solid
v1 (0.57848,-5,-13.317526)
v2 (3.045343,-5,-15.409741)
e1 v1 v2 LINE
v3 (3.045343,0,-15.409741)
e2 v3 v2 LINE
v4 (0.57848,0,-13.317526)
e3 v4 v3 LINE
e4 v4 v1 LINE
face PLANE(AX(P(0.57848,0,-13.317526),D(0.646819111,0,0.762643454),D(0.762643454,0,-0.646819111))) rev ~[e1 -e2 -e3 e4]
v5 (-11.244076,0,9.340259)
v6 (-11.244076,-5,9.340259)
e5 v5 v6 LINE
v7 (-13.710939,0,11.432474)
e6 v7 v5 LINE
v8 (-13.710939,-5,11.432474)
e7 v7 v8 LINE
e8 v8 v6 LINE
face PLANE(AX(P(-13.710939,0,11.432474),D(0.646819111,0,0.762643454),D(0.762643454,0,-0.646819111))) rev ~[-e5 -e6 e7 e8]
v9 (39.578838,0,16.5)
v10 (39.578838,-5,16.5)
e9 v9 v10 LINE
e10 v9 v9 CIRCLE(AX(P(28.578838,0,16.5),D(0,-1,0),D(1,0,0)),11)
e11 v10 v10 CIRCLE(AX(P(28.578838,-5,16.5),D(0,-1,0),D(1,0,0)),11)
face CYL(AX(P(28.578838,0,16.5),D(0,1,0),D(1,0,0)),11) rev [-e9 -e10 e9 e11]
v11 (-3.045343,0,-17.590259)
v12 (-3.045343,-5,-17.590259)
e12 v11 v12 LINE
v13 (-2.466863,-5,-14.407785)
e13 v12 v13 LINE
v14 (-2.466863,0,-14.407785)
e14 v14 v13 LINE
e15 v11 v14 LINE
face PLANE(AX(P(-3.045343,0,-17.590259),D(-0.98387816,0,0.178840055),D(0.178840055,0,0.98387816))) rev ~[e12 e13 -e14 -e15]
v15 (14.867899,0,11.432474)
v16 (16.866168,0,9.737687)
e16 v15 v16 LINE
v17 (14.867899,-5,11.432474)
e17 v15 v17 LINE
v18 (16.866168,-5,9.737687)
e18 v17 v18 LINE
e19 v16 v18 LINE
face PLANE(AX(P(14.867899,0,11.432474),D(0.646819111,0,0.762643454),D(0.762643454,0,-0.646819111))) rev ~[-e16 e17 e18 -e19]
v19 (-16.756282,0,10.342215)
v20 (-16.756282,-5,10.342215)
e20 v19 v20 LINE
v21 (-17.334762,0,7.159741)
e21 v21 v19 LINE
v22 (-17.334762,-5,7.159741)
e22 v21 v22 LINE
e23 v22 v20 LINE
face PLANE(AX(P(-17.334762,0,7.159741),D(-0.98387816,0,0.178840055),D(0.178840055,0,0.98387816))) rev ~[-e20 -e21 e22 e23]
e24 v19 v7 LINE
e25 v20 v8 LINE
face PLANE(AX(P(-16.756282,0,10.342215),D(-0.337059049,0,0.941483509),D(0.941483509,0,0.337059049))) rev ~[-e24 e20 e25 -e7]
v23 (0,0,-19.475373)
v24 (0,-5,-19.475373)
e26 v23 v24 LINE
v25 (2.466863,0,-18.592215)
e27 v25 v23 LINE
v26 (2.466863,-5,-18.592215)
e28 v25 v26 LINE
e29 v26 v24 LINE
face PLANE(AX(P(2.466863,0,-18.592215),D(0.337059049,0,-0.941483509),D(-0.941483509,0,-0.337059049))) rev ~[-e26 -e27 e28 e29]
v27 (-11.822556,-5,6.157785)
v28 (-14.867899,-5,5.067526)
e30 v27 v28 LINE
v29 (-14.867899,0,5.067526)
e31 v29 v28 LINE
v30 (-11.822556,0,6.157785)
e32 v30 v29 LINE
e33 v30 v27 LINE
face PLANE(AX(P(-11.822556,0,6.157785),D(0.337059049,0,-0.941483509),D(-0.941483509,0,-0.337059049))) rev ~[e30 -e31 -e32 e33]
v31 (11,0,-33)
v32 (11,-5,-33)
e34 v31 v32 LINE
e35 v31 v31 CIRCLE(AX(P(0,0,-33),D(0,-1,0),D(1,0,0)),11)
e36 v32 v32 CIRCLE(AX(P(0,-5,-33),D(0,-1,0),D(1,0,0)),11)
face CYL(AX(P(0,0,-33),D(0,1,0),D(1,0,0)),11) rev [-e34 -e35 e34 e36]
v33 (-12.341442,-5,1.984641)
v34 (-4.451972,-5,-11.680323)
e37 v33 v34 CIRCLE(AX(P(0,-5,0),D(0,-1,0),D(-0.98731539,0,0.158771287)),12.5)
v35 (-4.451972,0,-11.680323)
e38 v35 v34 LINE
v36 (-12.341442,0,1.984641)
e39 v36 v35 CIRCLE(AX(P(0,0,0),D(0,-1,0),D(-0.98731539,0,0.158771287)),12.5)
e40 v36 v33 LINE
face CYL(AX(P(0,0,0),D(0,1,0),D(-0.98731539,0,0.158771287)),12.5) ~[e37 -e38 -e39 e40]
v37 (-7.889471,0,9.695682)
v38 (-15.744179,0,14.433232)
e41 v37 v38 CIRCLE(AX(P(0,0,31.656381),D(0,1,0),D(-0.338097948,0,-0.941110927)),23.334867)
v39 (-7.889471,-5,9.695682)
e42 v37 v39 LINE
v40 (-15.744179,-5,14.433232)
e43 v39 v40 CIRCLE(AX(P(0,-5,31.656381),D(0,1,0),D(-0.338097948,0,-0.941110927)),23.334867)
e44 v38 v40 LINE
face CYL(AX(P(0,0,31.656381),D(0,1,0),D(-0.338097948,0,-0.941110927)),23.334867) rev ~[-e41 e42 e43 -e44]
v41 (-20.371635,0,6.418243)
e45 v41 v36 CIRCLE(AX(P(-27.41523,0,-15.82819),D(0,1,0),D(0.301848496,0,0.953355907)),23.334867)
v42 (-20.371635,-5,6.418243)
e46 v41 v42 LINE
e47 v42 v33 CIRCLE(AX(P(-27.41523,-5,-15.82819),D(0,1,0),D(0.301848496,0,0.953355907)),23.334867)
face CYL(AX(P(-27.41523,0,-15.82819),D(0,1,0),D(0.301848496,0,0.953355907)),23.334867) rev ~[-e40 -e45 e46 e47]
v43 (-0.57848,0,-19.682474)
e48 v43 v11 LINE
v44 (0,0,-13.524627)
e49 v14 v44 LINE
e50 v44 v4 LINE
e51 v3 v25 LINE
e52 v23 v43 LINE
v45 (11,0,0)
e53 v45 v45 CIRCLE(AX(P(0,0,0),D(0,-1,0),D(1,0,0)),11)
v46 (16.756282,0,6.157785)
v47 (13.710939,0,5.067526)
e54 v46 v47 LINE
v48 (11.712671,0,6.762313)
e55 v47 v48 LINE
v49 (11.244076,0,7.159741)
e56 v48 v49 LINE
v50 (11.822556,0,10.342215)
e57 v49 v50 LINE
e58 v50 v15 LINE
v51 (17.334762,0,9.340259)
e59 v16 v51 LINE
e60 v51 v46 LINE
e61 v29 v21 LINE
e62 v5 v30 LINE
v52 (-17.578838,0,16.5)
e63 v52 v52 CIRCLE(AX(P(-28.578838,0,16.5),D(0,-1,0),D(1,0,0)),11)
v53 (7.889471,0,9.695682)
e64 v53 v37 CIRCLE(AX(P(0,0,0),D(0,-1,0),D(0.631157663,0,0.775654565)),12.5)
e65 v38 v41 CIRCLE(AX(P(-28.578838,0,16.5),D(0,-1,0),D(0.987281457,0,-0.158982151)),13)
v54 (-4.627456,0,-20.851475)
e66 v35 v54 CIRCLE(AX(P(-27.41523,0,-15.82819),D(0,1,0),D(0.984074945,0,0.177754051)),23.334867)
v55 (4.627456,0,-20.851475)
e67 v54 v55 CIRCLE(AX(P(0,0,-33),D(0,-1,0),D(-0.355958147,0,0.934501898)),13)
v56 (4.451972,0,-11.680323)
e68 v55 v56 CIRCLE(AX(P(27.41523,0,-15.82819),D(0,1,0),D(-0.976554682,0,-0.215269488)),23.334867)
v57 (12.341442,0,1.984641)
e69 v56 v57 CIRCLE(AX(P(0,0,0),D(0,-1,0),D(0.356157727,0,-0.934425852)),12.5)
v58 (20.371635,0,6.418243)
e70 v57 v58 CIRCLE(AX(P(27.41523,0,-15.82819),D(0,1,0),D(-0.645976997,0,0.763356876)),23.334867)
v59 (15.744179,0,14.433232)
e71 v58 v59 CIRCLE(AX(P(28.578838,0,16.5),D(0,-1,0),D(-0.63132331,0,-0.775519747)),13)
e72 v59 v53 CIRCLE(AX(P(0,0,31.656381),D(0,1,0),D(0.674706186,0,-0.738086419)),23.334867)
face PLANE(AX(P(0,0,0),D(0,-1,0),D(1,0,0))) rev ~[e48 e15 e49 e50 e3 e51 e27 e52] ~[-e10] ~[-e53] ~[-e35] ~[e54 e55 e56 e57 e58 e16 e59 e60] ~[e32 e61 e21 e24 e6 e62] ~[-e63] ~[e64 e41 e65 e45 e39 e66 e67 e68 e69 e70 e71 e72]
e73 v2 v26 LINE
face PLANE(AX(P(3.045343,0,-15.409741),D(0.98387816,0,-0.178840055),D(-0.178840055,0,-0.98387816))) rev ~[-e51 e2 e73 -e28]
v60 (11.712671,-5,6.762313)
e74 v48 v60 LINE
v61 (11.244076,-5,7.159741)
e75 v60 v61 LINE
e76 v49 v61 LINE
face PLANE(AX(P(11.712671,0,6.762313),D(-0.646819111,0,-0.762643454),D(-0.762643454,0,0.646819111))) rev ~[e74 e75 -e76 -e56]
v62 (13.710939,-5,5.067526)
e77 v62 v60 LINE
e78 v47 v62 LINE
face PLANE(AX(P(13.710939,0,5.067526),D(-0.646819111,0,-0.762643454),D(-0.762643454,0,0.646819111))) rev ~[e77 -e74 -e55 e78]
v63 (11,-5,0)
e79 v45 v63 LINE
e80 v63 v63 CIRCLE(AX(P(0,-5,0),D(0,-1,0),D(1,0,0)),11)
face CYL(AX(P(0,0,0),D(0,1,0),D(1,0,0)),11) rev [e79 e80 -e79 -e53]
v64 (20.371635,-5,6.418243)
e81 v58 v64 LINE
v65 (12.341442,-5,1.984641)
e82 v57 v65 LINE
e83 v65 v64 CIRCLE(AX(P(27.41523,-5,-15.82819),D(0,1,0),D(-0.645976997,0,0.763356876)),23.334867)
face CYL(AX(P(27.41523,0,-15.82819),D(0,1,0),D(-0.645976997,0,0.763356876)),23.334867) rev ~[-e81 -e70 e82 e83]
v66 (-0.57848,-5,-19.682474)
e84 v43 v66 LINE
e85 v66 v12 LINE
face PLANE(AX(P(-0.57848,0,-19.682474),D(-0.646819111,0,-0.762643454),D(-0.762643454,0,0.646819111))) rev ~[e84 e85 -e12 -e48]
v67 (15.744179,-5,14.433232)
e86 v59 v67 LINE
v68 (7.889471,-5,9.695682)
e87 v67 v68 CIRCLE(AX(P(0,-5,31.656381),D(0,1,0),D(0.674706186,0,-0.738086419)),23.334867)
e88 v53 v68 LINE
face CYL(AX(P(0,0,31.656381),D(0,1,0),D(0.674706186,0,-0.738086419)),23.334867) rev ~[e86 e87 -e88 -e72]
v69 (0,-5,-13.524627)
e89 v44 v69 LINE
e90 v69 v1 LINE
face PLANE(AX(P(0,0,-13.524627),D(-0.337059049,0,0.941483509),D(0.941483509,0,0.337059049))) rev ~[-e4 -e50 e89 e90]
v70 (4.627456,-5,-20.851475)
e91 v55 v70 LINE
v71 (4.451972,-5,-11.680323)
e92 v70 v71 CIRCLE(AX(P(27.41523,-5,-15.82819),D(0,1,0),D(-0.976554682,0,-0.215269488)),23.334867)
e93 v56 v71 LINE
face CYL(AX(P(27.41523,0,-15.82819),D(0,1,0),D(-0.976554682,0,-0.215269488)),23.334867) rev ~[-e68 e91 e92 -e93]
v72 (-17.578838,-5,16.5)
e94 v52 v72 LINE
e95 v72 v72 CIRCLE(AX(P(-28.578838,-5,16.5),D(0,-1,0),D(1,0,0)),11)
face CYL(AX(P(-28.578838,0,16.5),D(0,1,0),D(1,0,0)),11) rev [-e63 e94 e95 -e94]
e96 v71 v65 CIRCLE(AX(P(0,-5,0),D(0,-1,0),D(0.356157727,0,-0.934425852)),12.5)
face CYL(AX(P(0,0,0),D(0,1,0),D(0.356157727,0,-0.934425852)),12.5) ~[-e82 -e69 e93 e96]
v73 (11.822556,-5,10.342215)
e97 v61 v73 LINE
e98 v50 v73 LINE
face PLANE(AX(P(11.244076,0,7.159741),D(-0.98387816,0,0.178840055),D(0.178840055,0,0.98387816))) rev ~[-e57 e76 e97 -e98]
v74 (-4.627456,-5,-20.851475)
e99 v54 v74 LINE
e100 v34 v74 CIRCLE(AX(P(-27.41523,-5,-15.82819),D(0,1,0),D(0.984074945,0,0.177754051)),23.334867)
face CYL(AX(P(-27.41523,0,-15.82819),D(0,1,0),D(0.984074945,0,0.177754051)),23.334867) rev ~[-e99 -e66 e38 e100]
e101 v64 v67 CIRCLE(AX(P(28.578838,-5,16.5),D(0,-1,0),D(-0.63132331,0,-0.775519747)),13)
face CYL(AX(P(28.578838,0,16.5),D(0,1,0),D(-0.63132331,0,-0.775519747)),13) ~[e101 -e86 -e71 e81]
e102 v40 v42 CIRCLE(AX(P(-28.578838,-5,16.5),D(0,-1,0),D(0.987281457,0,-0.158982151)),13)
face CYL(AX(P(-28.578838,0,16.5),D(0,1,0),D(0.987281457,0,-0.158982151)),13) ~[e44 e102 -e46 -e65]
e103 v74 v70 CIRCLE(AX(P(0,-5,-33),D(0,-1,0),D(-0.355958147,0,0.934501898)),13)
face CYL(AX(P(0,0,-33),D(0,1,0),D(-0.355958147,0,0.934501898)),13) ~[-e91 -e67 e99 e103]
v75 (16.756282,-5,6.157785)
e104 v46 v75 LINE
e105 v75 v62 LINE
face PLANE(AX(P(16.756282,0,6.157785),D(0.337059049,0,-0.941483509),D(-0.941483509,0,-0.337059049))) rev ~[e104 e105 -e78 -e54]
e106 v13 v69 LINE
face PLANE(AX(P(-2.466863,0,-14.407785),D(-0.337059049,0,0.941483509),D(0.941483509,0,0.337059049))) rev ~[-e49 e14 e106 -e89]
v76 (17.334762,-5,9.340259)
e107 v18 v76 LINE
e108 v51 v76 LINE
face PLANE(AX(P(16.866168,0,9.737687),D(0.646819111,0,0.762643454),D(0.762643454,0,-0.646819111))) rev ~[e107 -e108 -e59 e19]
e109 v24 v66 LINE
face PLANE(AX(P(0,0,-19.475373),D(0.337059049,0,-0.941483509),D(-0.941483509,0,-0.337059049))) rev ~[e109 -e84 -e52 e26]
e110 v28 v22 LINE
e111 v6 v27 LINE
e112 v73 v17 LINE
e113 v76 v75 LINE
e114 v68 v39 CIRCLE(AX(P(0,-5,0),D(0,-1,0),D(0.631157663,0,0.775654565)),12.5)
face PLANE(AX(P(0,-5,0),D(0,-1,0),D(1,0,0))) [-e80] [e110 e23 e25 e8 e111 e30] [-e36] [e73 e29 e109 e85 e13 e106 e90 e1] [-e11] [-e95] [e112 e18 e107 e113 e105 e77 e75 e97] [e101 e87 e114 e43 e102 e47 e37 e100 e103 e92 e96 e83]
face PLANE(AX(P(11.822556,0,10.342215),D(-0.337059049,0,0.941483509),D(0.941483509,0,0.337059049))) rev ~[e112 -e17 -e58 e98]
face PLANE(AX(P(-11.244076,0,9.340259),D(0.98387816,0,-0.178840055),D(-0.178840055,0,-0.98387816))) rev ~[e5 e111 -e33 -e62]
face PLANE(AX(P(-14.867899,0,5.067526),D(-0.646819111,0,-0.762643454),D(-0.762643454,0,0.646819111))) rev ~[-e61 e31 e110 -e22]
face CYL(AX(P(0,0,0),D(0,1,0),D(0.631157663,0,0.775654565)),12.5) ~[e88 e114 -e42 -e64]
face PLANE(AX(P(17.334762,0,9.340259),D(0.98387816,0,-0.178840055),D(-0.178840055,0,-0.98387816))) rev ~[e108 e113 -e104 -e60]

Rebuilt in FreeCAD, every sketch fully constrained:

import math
import FreeCAD as App
import Part
import Sketcher
from FreeCAD import Vector
Q = App.Units.Quantity


def add_polygon(sketch, points):
    """Adds a closed chain of lines whose ends are joined by coincident constraints."""
    first, n = sketch.GeometryCount, len(points)
    for a, b in zip(points, points[1:] + points[:1]):
        sketch.addGeometry(Part.LineSegment(App.Vector(*a, 0), App.Vector(*b, 0)), False)
    for i in range(n):
        sketch.addConstraint(Sketcher.Constraint("Coincident", first + i, 2, first + (i + 1) % n, 1))

doc = App.newDocument("Part")
body = doc.addObject("PartDesign::Body", "Body")

sketch1 = body.newObject("Sketcher::SketchObject", "Sketch")
sketch1.AttachmentSupport = (doc.getObject("XZ_Plane"), [""])
sketch1.MapMode = "FlatFace"
sketch1.addGeometry(Part.ArcOfCircle(Part.Circle(Vector(27.4, -15.8, 0), Vector(0, 0, 1), 23.3), math.radians(108), math.radians(130)), False)
sketch1.addGeometry(Part.ArcOfCircle(Part.Circle(Vector(28.6, 16.5, 0), Vector(0, 0, 1), 13), math.radians(-129), math.radians(189)), False)
sketch1.addGeometry(Part.ArcOfCircle(Part.Circle(Vector(0, 31.7, 0), Vector(0, 0, 1), 23.3), math.radians(-70), math.radians(-48)), False)
sketch1.addGeometry(Part.ArcOfCircle(Part.Circle(Vector(0, 0, 0), Vector(0, 0, 1), 12.5), math.radians(51), math.radians(129)), False)
sketch1.addGeometry(Part.ArcOfCircle(Part.Circle(Vector(0, 31.7, 0), Vector(0, 0, 1), 23.3), math.radians(-132), math.radians(-110)), False)
sketch1.addGeometry(Part.ArcOfCircle(Part.Circle(Vector(-28.6, 16.5, 0), Vector(0, 0, 1), 13), math.radians(-9), math.radians(309)), False)
sketch1.addGeometry(Part.ArcOfCircle(Part.Circle(Vector(-27.4, -15.8, 0), Vector(0, 0, 1), 23.3), math.radians(50), math.radians(72)), False)
sketch1.addGeometry(Part.ArcOfCircle(Part.Circle(Vector(0, 0, 0), Vector(0, 0, 1), 12.5), math.radians(171), math.radians(249)), False)
sketch1.addGeometry(Part.ArcOfCircle(Part.Circle(Vector(-27.4, -15.8, 0), Vector(0, 0, 1), 23.3), math.radians(-12), math.radians(10)), False)
sketch1.addGeometry(Part.ArcOfCircle(Part.Circle(Vector(0, -33, 0), Vector(0, 0, 1), 13), math.radians(111), math.radians(429)), False)
sketch1.addGeometry(Part.ArcOfCircle(Part.Circle(Vector(27.4, -15.8, 0), Vector(0, 0, 1), 23.3), math.radians(170), math.radians(192)), False)
sketch1.addGeometry(Part.ArcOfCircle(Part.Circle(Vector(0, 0, 0), Vector(0, 0, 1), 12.5), math.radians(-69), math.radians(9)), False)
sketch1.addGeometry(Part.Circle(Vector(0, -33, 0), Vector(0, 0, 1), 11), False)
add_polygon(sketch1, [(0, -13.5), (0.6, -13.3), (3, -15.4), (2.5, -18.6), (0, -19.5), (-0.6, -19.7), (-3, -17.6), (-2.5, -14.4)])
add_polygon(sketch1, [(-11.2, 9.3), (-11.8, 6.2), (-14.9, 5.1), (-17.3, 7.2), (-16.8, 10.3), (-13.7, 11.4)])
sketch1.addGeometry(Part.Circle(Vector(-28.6, 16.5, 0), Vector(0, 0, 1), 11), False)
sketch1.addGeometry(Part.Circle(Vector(0, 0, 0), Vector(0, 0, 1), 11), False)
add_polygon(sketch1, [(16.9, 9.7), (17.3, 9.3), (16.8, 6.2), (13.7, 5.1), (11.7, 6.8), (11.2, 7.2), (11.8, 10.3), (14.9, 11.4)])
sketch1.addGeometry(Part.Circle(Vector(28.6, 16.5, 0), Vector(0, 0, 1), 11), False)
sketch1.addConstraint([
    Sketcher.Constraint("Coincident", 0, 1, 1, 1),
    Sketcher.Constraint("Coincident", 1, 2, 2, 2),
    Sketcher.Constraint("Coincident", 2, 1, 3, 1),
    Sketcher.Constraint("Coincident", 3, 2, 4, 2),
    Sketcher.Constraint("Coincident", 4, 1, 5, 1),
    Sketcher.Constraint("Coincident", 5, 2, 6, 2),
    Sketcher.Constraint("Coincident", 6, 1, 7, 1),
    Sketcher.Constraint("Coincident", 7, 2, 8, 2),
    Sketcher.Constraint("Coincident", 8, 1, 9, 1),
    Sketcher.Constraint("Coincident", 9, 2, 10, 2),
    Sketcher.Constraint("Coincident", 10, 1, 11, 1),
    Sketcher.Constraint("Coincident", 11, 2, 0, 2),
    Sketcher.Constraint("Coincident", 3, 3, -1, 1),
    Sketcher.Constraint("Coincident", 7, 3, -1, 1),
    Sketcher.Constraint("Coincident", 11, 3, -1, 1),
    Sketcher.Constraint("Coincident", 28, 3, -1, 1),
    Sketcher.Constraint("Coincident", 4, 3, 2, 3),
    Sketcher.Constraint("Coincident", 8, 3, 6, 3),
    Sketcher.Constraint("Coincident", 10, 3, 0, 3),
    Sketcher.Constraint("Coincident", 12, 3, 9, 3),
    Sketcher.Constraint("Coincident", 27, 3, 5, 3),
    Sketcher.Constraint("Coincident", 37, 3, 1, 3),
    Sketcher.Constraint("Equal", 0, 2),
    Sketcher.Constraint("Equal", 2, 4),
    Sketcher.Constraint("Equal", 1, 5),
    Sketcher.Constraint("Equal", 4, 6),
    Sketcher.Constraint("Equal", 3, 7),
    Sketcher.Constraint("Equal", 6, 8),
    Sketcher.Constraint("Equal", 5, 9),
    Sketcher.Constraint("Equal", 8, 10),
    Sketcher.Constraint("Equal", 7, 11),
    Sketcher.Constraint("Equal", 12, 27),
    Sketcher.Constraint("Equal", 27, 28),
    Sketcher.Constraint("Equal", 28, 37),
    Sketcher.Constraint("Symmetric", 1, 3, 5, 3, -2),
    Sketcher.Constraint("Symmetric", 0, 3, 6, 3, -2),
    Sketcher.Constraint("PointOnObject", 2, 3, -2),
    Sketcher.Constraint("PointOnObject", 9, 3, -2),
    Sketcher.Constraint("PointOnObject", 16, 2, -2),
    Sketcher.Constraint("PointOnObject", 20, 2, -2),
    Sketcher.Constraint("Parallel", 13, 16),
    Sketcher.Constraint("Parallel", 16, 17),
    Sketcher.Constraint("Parallel", 14, 18),
    Sketcher.Constraint("Parallel", 15, 19),
    Sketcher.Constraint("Parallel", 17, 20),
    Sketcher.Constraint("Parallel", 19, 21),
    Sketcher.Constraint("Parallel", 20, 22),
    Sketcher.Constraint("Parallel", 18, 23),
    Sketcher.Constraint("Parallel", 21, 24),
    Sketcher.Constraint("Parallel", 22, 25),
    Sketcher.Constraint("Parallel", 23, 26),
    Sketcher.Constraint("Parallel", 26, 29),
    Sketcher.Constraint("Parallel", 24, 30),
    Sketcher.Constraint("Parallel", 25, 31),
    Sketcher.Constraint("Parallel", 29, 32),
    Sketcher.Constraint("Parallel", 32, 33),
    Sketcher.Constraint("Parallel", 30, 34),
    Sketcher.Constraint("Parallel", 31, 35),
    Sketcher.Constraint("Parallel", 33, 36),
    Sketcher.Constraint("Horizontal", 26, 2, 29, 2),
    Sketcher.Constraint("Horizontal", 21, 2, 30, 2),
    Sketcher.Constraint("Horizontal", 22, 2, 31, 2),
    Sketcher.Constraint("Horizontal", 23, 2, 33, 2),
    Sketcher.Constraint("Horizontal", 24, 2, 34, 2),
    Sketcher.Constraint("Equal", 14, 15),
    Sketcher.Constraint("Equal", 13, 17),
    Sketcher.Constraint("Equal", 15, 18),
    Sketcher.Constraint("Equal", 19, 21),
    Sketcher.Constraint("Equal", 21, 22),
    Sketcher.Constraint("Equal", 22, 23),
    Sketcher.Constraint("Equal", 23, 24),
    Sketcher.Constraint("Equal", 17, 29),
    Sketcher.Constraint("Equal", 20, 32),
    Sketcher.Constraint("Equal", 29, 33),
    Sketcher.Constraint("Diameter", 12, Q("22 mm")),
    Sketcher.Constraint("Radius", 1, Q("13 mm")),
    Sketcher.Constraint("Radius", 3, Q("12.5 mm")),
    Sketcher.Constraint("DistanceY", 9, 3, -1, 1, Q("33 mm")),
    Sketcher.Constraint("DistanceY", -1, 1, 1, 3, Q("16.5 mm")),
    Sketcher.Constraint("Radius", 0, Q("23.334867 mm")),
    Sketcher.Constraint("DistanceY", 8, 1, 17, 2, Q("1.169002 mm")),
    Sketcher.Constraint("DistanceX", 22, 2, -1, 1, Q("14.867899 mm")),
    Sketcher.Constraint("DistanceX", -1, 1, 35, 2, Q("14.867899 mm")),
    Sketcher.Constraint("DistanceX", 8, 1, 14, 2, Q("7.672799 mm")),
    Sketcher.Constraint("DistanceY", 17, 2, 16, 2, Q("0.207101 mm")),
    Sketcher.Constraint("DistanceY", 5, 2, 23, 2, Q("0.741498 mm")),
    Sketcher.Constraint("DistanceY", 6, 1, 23, 2, Q("5.1751 mm")),
    Sketcher.Constraint("DistanceX", 2, 1, 32, 2, Q("3.8232 mm")),
    Sketcher.Constraint("DistanceY", 32, 2, 34, 2, Q("3.579902 mm")),
    Sketcher.Constraint("Distance", 14, Q("3.234622 mm")),
    Sketcher.Constraint("DistanceX", -1, 1, 0, 3, Q("27.41523 mm")),
    Sketcher.Constraint("DistanceY", 0, 3, -1, 1, Q("15.82819 mm")),
])
pad1 = body.newObject("PartDesign::Pad", "Pad")
pad1.Profile = sketch1
pad1.Length = 5

doc.recompute()
